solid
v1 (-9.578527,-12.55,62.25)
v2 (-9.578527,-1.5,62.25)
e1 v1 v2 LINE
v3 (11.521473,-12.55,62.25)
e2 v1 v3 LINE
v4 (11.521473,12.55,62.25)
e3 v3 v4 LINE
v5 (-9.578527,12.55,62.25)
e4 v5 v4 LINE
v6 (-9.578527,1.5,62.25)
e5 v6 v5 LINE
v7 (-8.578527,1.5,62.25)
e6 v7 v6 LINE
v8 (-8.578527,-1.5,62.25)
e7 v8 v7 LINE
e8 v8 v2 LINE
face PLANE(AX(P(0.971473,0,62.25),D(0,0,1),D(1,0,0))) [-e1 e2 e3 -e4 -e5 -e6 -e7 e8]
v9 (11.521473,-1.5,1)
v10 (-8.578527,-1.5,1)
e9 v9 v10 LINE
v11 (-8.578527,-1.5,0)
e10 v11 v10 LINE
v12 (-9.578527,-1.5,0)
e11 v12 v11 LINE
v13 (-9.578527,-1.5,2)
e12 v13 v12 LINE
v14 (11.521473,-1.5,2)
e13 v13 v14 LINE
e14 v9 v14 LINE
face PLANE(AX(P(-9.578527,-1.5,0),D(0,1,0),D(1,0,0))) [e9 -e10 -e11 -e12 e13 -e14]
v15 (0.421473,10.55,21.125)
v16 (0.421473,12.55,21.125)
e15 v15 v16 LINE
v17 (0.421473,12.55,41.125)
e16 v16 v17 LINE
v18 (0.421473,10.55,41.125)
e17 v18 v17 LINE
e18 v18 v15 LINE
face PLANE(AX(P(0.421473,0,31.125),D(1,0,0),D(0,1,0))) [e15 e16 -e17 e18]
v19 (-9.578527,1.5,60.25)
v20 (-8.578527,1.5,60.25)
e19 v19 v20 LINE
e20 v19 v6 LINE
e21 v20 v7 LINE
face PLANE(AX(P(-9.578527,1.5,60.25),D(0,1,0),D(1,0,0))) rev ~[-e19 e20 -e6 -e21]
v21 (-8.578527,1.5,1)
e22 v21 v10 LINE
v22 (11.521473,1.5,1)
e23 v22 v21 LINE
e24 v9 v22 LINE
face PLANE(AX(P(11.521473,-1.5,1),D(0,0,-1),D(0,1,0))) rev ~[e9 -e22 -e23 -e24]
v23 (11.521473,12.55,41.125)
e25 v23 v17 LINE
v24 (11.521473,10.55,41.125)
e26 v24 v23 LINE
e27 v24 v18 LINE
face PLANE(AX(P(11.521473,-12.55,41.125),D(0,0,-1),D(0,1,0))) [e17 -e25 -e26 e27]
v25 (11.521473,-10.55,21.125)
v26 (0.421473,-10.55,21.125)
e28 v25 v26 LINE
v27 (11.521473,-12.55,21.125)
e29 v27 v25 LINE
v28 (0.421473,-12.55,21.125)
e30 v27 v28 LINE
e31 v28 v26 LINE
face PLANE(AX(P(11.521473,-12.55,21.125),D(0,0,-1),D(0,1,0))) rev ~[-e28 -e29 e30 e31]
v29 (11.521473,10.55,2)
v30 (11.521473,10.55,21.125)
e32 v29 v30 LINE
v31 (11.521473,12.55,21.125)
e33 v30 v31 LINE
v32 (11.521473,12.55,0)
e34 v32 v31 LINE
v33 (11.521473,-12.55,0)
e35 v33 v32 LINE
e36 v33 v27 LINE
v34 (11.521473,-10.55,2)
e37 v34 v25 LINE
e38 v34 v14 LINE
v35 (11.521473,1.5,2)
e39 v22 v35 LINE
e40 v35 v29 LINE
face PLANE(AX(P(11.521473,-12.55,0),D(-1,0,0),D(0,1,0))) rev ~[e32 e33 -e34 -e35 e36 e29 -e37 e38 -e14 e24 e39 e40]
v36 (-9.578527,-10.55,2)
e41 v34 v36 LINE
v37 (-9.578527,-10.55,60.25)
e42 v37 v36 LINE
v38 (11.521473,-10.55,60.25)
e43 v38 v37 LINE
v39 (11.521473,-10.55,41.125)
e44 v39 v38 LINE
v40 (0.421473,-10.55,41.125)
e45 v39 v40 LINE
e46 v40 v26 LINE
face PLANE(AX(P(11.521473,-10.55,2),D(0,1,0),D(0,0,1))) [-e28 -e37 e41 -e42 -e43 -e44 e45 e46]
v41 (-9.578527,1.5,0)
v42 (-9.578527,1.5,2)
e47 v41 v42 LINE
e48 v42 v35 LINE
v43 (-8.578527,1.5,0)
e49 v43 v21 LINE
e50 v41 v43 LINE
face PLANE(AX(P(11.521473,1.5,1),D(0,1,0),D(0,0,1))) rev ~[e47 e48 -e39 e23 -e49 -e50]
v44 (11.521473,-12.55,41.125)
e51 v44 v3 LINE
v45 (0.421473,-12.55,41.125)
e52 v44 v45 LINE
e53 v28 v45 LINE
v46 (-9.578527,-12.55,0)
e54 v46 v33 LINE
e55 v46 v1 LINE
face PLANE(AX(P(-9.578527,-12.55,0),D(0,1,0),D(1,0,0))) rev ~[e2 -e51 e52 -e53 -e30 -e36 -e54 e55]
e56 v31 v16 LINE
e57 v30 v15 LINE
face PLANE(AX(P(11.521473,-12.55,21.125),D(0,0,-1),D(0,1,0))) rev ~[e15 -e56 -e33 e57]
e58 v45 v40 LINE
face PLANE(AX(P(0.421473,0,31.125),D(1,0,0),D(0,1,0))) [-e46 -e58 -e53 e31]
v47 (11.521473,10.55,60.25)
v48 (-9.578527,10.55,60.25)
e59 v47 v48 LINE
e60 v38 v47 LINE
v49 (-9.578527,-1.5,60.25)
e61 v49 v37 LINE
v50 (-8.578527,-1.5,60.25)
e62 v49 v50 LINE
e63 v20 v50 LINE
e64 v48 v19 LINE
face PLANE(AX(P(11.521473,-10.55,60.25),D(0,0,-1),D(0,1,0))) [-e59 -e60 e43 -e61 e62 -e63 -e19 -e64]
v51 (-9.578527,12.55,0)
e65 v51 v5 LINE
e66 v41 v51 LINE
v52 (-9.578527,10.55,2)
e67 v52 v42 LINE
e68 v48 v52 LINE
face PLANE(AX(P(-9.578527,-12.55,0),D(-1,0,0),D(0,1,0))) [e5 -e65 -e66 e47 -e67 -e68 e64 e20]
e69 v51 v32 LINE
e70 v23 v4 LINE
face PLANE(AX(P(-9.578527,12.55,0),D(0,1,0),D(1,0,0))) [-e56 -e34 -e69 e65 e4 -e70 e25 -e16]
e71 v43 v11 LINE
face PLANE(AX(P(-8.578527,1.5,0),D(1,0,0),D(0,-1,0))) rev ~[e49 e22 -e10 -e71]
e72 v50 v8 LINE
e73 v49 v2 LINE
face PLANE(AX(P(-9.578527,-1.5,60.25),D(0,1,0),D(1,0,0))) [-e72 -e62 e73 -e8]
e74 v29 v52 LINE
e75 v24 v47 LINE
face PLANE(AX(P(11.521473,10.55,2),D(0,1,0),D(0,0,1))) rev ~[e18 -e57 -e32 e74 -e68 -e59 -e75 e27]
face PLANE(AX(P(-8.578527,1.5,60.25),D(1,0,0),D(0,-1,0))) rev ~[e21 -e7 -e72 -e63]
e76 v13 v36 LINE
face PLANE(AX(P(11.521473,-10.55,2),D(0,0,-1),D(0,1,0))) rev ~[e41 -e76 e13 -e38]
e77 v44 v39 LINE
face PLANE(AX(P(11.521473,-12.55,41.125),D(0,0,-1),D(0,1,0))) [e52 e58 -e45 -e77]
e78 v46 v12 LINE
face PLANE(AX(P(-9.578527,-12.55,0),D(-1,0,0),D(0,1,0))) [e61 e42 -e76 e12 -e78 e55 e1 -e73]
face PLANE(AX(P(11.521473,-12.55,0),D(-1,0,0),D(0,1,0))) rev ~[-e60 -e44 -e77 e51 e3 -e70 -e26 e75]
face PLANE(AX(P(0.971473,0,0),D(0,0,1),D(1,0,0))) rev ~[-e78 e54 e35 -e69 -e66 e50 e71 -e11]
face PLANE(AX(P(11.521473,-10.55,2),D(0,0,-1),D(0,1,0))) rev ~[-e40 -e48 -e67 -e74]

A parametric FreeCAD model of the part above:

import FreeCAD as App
import Part
import Sketcher
from FreeCAD import Vector


def add_polygon(sketch, points):
    """Adds a closed chain of lines whose ends are joined by coincident constraints."""
    first, n = sketch.GeometryCount, len(points)
    for a, b in zip(points, points[1:] + points[:1]):
        sketch.addGeometry(Part.LineSegment(App.Vector(*a, 0), App.Vector(*b, 0)), False)
    for i in range(n):
        sketch.addConstraint(Sketcher.Constraint("Coincident", first + i, 2, first + (i + 1) % n, 1))

doc = App.newDocument("Part")
params = doc.addObject("Spreadsheet::Sheet", "Params")
for row, (alias, value) in enumerate([
    ("sketch1_width", "21.1 mm"),
    ("sketch1_height", "25.1 mm"),
    ("pad1_length", "62.25 mm"),
    ("sketch2_width", "21.1 mm"),
    ("sketch2_height", "58.25 mm"),
    ("pocket1_length", "25.4 mm"),
    ("pocket2_length", "25.4 mm"),
    ("sketch3_width", "3 mm"),
    ("sketch3_height", "2 mm"),
    ("pocket3_length", "25.4 mm"),
    ("pocket4_length", "25.4 mm"),
    ("sketch4_height", "20 mm"),
    ("sketch4_width", "25.1 mm"),
    ("pocket5_length", "11.1 mm"),
    ("sketch5_width", "1 mm"),
    ("sketch5_height", "3 mm"),
    ("pocket6_length", "25.4 mm"),
    ("pocket7_length", "25.4 mm"),
    ("sketch6_width", "1 mm"),
    ("sketch6_height", "3 mm"),
    ("pocket8_length", "25.4 mm"),
    ("pocket9_length", "25.4 mm"),
], start=1):
    params.set(f"A{row}", alias)
    params.set(f"B{row}", "=" + value)
    params.setAlias(f"B{row}", alias)

body = doc.addObject("PartDesign::Body", "Body")

# Sketch on XY plane
sketch1 = body.newObject("Sketcher::SketchObject", "Sketch")
sketch1.AttachmentSupport = (doc.getObject("XY_Plane"), [""])
sketch1.MapMode = "FlatFace"
add_polygon(sketch1, [(-10, 13), (-10, -13), (12, -13), (12, 13)])  # lines 0-3
sketch1.addConstraint([
    Sketcher.Constraint("Vertical", 0),
    Sketcher.Constraint("Horizontal", 1),
    Sketcher.Constraint("Vertical", 2),
    Sketcher.Constraint("Horizontal", 3),
    Sketcher.Constraint("DistanceX", 1, 1, 1, 2, 21.1),
    Sketcher.Constraint("DistanceY", 0, 2, 0, 1, 25.1),
    Sketcher.Constraint("DistanceY", 0, 2, -1, 1, 12.55),
    Sketcher.Constraint("DistanceX", 0, 2, -1, 1, 9.578527),
])
sketch1.setExpression("Constraints[8]", "Params.sketch1_width")
sketch1.setExpression("Constraints[9]", "Params.sketch1_height")
pad1 = body.newObject("PartDesign::Pad", "Pad")
pad1.Profile = sketch1
pad1.setExpression("Length", "Params.pad1_length")

# Sketch on YZ plane
sketch2 = body.newObject("Sketcher::SketchObject", "Sketch001")
sketch2.AttachmentSupport = (doc.getObject("YZ_Plane"), [""])
sketch2.MapMode = "FlatFace"
sketch2.AttachmentOffset = App.Placement(Vector(0, 0, 11.521473), App.Rotation())
add_polygon(sketch2, [(-11, 60), (-11, 2), (11, 2), (11, 60)])  # lines 0-3
sketch2.addConstraint([
    Sketcher.Constraint("Vertical", 0),
    Sketcher.Constraint("Horizontal", 1),
    Sketcher.Constraint("Vertical", 2),
    Sketcher.Constraint("Horizontal", 3),
    Sketcher.Constraint("DistanceX", 1, 1, 1, 2, 21.1),
    Sketcher.Constraint("DistanceY", -1, 1, 0, 2, 2.0),
    Sketcher.Constraint("DistanceY", 0, 2, 0, 1, 58.25),
    Sketcher.Constraint("DistanceX", 0, 2, -1, 1, 10.55),
])
sketch2.setExpression("Constraints[8]", "Params.sketch2_width")
sketch2.setExpression("Constraints[10]", "Params.sketch2_height")
pocket1 = body.newObject("PartDesign::Pocket", "Pocket")
pocket1.Profile = sketch2
pocket1.setExpression("Length", "Params.pocket1_length")
pocket2 = body.newObject("PartDesign::Pocket", "Pocket001")
pocket2.Profile = sketch2
pocket2.setExpression("Length", "Params.pocket2_length")

# Sketch on YZ plane
sketch3 = body.newObject("Sketcher::SketchObject", "Sketch002")
sketch3.AttachmentSupport = (doc.getObject("YZ_Plane"), [""])
sketch3.MapMode = "FlatFace"
sketch3.AttachmentOffset = App.Placement(Vector(0, 0, 11.521473), App.Rotation())
add_polygon(sketch3, [(-1.5, 3), (-1.5, 1), (1.5, 1), (1.5, 3)])  # lines 0-3
sketch3.addConstraint([
    Sketcher.Constraint("Vertical", 0),
    Sketcher.Constraint("Horizontal", 1),
    Sketcher.Constraint("Vertical", 2),
    Sketcher.Constraint("Horizontal", 3),
    Sketcher.Constraint("DistanceX", 1, 1, 1, 2, 3.0),
    Sketcher.Constraint("DistanceY", 0, 2, 0, 1, 2.0),
    Sketcher.Constraint("DistanceY", -1, 1, 0, 2, 1.0),
    Sketcher.Constraint("DistanceX", 0, 2, -1, 1, 1.5),
])
sketch3.setExpression("Constraints[8]", "Params.sketch3_width")
sketch3.setExpression("Constraints[9]", "Params.sketch3_height")
pocket3 = body.newObject("PartDesign::Pocket", "Pocket002")
pocket3.Profile = sketch3
pocket3.setExpression("Length", "Params.pocket3_length")
pocket4 = body.newObject("PartDesign::Pocket", "Pocket003")
pocket4.Profile = sketch3
pocket4.setExpression("Length", "Params.pocket4_length")

# Sketch on YZ plane
sketch4 = body.newObject("Sketcher::SketchObject", "Sketch003")
sketch4.AttachmentSupport = (doc.getObject("YZ_Plane"), [""])
sketch4.MapMode = "FlatFace"
sketch4.AttachmentOffset = App.Placement(Vector(0, 0, 11.521473), App.Rotation())
add_polygon(sketch4, [(-13, 41), (-13, 21), (13, 21), (13, 41)])  # lines 0-3
sketch4.addConstraint([
    Sketcher.Constraint("Vertical", 0),
    Sketcher.Constraint("Horizontal", 1),
    Sketcher.Constraint("Vertical", 2),
    Sketcher.Constraint("Horizontal", 3),
    Sketcher.Constraint("DistanceY", 0, 2, 0, 1, 20.0),
    Sketcher.Constraint("DistanceX", 1, 1, 1, 2, 25.1),
    Sketcher.Constraint("DistanceX", 0, 2, -1, 1, 12.55),
    Sketcher.Constraint("DistanceY", -1, 1, 0, 2, 21.125),
])
sketch4.setExpression("Constraints[8]", "Params.sketch4_height")
sketch4.setExpression("Constraints[9]", "Params.sketch4_width")
pocket5 = body.newObject("PartDesign::Pocket", "Pocket004")
pocket5.Profile = sketch4
pocket5.setExpression("Length", "Params.pocket5_length")

# Sketch on XY plane
sketch5 = body.newObject("Sketcher::SketchObject", "Sketch004")
sketch5.AttachmentSupport = (doc.getObject("XY_Plane"), [""])
sketch5.MapMode = "FlatFace"
add_polygon(sketch5, [(-9.6, -1.5), (-9.6, 1.5), (-8.6, 1.5), (-8.6, -1.5)])  # lines 0-3
sketch5.addConstraint([
    Sketcher.Constraint("Vertical", 0),
    Sketcher.Constraint("Horizontal", 1),
    Sketcher.Constraint("Vertical", 2),
    Sketcher.Constraint("Horizontal", 3),
    Sketcher.Constraint("DistanceX", 1, 1, 1, 2, 1.0),
    Sketcher.Constraint("DistanceY", 0, 1, 0, 2, 3.0),
    Sketcher.Constraint("DistanceY", -1, 1, 0, 2, 1.5),
    Sketcher.Constraint("DistanceX", 0, 2, -1, 1, 9.578527),
])
sketch5.setExpression("Constraints[8]", "Params.sketch5_width")
sketch5.setExpression("Constraints[9]", "Params.sketch5_height")
pocket6 = body.newObject("PartDesign::Pocket", "Pocket005")
pocket6.Profile = sketch5
pocket6.setExpression("Length", "Params.pocket6_length")
pocket6.Reversed = True
pocket7 = body.newObject("PartDesign::Pocket", "Pocket006")
pocket7.Profile = sketch5
pocket7.setExpression("Length", "Params.pocket7_length")
pocket7.Reversed = True

# Sketch on XY plane
sketch6 = body.newObject("Sketcher::SketchObject", "Sketch005")
sketch6.AttachmentSupport = (doc.getObject("XY_Plane"), [""])
sketch6.MapMode = "FlatFace"
sketch6.AttachmentOffset = App.Placement(Vector(0, 0, 60.25), App.Rotation())
add_polygon(sketch6, [(-9.6, -1.5), (-9.6, 1.5), (-8.6, 1.5), (-8.6, -1.5)])  # lines 0-3
sketch6.addConstraint([
    Sketcher.Constraint("Vertical", 0),
    Sketcher.Constraint("Horizontal", 1),
    Sketcher.Constraint("Vertical", 2),
    Sketcher.Constraint("Horizontal", 3),
    Sketcher.Constraint("DistanceX", 1, 1, 1, 2, 1.0),
    Sketcher.Constraint("DistanceY", 0, 1, 0, 2, 3.0),
    Sketcher.Constraint("DistanceY", -1, 1, 0, 2, 1.5),
    Sketcher.Constraint("DistanceX", 0, 2, -1, 1, 9.578527),
])
sketch6.setExpression("Constraints[8]", "Params.sketch6_width")
sketch6.setExpression("Constraints[9]", "Params.sketch6_height")
pocket8 = body.newObject("PartDesign::Pocket", "Pocket007")
pocket8.Profile = sketch6
pocket8.setExpression("Length", "Params.pocket8_length")
pocket8.Reversed = True
pocket9 = body.newObject("PartDesign::Pocket", "Pocket008")
pocket9.Profile = sketch6
pocket9.setExpression("Length", "Params.pocket9_length")
pocket9.Reversed = True
body2 = doc.addObject("PartDesign::Body", "Body001")
doc.recompute()

body2.BaseFeature = body
doc.recompute()
body.Visibility = False

doc.recompute()
